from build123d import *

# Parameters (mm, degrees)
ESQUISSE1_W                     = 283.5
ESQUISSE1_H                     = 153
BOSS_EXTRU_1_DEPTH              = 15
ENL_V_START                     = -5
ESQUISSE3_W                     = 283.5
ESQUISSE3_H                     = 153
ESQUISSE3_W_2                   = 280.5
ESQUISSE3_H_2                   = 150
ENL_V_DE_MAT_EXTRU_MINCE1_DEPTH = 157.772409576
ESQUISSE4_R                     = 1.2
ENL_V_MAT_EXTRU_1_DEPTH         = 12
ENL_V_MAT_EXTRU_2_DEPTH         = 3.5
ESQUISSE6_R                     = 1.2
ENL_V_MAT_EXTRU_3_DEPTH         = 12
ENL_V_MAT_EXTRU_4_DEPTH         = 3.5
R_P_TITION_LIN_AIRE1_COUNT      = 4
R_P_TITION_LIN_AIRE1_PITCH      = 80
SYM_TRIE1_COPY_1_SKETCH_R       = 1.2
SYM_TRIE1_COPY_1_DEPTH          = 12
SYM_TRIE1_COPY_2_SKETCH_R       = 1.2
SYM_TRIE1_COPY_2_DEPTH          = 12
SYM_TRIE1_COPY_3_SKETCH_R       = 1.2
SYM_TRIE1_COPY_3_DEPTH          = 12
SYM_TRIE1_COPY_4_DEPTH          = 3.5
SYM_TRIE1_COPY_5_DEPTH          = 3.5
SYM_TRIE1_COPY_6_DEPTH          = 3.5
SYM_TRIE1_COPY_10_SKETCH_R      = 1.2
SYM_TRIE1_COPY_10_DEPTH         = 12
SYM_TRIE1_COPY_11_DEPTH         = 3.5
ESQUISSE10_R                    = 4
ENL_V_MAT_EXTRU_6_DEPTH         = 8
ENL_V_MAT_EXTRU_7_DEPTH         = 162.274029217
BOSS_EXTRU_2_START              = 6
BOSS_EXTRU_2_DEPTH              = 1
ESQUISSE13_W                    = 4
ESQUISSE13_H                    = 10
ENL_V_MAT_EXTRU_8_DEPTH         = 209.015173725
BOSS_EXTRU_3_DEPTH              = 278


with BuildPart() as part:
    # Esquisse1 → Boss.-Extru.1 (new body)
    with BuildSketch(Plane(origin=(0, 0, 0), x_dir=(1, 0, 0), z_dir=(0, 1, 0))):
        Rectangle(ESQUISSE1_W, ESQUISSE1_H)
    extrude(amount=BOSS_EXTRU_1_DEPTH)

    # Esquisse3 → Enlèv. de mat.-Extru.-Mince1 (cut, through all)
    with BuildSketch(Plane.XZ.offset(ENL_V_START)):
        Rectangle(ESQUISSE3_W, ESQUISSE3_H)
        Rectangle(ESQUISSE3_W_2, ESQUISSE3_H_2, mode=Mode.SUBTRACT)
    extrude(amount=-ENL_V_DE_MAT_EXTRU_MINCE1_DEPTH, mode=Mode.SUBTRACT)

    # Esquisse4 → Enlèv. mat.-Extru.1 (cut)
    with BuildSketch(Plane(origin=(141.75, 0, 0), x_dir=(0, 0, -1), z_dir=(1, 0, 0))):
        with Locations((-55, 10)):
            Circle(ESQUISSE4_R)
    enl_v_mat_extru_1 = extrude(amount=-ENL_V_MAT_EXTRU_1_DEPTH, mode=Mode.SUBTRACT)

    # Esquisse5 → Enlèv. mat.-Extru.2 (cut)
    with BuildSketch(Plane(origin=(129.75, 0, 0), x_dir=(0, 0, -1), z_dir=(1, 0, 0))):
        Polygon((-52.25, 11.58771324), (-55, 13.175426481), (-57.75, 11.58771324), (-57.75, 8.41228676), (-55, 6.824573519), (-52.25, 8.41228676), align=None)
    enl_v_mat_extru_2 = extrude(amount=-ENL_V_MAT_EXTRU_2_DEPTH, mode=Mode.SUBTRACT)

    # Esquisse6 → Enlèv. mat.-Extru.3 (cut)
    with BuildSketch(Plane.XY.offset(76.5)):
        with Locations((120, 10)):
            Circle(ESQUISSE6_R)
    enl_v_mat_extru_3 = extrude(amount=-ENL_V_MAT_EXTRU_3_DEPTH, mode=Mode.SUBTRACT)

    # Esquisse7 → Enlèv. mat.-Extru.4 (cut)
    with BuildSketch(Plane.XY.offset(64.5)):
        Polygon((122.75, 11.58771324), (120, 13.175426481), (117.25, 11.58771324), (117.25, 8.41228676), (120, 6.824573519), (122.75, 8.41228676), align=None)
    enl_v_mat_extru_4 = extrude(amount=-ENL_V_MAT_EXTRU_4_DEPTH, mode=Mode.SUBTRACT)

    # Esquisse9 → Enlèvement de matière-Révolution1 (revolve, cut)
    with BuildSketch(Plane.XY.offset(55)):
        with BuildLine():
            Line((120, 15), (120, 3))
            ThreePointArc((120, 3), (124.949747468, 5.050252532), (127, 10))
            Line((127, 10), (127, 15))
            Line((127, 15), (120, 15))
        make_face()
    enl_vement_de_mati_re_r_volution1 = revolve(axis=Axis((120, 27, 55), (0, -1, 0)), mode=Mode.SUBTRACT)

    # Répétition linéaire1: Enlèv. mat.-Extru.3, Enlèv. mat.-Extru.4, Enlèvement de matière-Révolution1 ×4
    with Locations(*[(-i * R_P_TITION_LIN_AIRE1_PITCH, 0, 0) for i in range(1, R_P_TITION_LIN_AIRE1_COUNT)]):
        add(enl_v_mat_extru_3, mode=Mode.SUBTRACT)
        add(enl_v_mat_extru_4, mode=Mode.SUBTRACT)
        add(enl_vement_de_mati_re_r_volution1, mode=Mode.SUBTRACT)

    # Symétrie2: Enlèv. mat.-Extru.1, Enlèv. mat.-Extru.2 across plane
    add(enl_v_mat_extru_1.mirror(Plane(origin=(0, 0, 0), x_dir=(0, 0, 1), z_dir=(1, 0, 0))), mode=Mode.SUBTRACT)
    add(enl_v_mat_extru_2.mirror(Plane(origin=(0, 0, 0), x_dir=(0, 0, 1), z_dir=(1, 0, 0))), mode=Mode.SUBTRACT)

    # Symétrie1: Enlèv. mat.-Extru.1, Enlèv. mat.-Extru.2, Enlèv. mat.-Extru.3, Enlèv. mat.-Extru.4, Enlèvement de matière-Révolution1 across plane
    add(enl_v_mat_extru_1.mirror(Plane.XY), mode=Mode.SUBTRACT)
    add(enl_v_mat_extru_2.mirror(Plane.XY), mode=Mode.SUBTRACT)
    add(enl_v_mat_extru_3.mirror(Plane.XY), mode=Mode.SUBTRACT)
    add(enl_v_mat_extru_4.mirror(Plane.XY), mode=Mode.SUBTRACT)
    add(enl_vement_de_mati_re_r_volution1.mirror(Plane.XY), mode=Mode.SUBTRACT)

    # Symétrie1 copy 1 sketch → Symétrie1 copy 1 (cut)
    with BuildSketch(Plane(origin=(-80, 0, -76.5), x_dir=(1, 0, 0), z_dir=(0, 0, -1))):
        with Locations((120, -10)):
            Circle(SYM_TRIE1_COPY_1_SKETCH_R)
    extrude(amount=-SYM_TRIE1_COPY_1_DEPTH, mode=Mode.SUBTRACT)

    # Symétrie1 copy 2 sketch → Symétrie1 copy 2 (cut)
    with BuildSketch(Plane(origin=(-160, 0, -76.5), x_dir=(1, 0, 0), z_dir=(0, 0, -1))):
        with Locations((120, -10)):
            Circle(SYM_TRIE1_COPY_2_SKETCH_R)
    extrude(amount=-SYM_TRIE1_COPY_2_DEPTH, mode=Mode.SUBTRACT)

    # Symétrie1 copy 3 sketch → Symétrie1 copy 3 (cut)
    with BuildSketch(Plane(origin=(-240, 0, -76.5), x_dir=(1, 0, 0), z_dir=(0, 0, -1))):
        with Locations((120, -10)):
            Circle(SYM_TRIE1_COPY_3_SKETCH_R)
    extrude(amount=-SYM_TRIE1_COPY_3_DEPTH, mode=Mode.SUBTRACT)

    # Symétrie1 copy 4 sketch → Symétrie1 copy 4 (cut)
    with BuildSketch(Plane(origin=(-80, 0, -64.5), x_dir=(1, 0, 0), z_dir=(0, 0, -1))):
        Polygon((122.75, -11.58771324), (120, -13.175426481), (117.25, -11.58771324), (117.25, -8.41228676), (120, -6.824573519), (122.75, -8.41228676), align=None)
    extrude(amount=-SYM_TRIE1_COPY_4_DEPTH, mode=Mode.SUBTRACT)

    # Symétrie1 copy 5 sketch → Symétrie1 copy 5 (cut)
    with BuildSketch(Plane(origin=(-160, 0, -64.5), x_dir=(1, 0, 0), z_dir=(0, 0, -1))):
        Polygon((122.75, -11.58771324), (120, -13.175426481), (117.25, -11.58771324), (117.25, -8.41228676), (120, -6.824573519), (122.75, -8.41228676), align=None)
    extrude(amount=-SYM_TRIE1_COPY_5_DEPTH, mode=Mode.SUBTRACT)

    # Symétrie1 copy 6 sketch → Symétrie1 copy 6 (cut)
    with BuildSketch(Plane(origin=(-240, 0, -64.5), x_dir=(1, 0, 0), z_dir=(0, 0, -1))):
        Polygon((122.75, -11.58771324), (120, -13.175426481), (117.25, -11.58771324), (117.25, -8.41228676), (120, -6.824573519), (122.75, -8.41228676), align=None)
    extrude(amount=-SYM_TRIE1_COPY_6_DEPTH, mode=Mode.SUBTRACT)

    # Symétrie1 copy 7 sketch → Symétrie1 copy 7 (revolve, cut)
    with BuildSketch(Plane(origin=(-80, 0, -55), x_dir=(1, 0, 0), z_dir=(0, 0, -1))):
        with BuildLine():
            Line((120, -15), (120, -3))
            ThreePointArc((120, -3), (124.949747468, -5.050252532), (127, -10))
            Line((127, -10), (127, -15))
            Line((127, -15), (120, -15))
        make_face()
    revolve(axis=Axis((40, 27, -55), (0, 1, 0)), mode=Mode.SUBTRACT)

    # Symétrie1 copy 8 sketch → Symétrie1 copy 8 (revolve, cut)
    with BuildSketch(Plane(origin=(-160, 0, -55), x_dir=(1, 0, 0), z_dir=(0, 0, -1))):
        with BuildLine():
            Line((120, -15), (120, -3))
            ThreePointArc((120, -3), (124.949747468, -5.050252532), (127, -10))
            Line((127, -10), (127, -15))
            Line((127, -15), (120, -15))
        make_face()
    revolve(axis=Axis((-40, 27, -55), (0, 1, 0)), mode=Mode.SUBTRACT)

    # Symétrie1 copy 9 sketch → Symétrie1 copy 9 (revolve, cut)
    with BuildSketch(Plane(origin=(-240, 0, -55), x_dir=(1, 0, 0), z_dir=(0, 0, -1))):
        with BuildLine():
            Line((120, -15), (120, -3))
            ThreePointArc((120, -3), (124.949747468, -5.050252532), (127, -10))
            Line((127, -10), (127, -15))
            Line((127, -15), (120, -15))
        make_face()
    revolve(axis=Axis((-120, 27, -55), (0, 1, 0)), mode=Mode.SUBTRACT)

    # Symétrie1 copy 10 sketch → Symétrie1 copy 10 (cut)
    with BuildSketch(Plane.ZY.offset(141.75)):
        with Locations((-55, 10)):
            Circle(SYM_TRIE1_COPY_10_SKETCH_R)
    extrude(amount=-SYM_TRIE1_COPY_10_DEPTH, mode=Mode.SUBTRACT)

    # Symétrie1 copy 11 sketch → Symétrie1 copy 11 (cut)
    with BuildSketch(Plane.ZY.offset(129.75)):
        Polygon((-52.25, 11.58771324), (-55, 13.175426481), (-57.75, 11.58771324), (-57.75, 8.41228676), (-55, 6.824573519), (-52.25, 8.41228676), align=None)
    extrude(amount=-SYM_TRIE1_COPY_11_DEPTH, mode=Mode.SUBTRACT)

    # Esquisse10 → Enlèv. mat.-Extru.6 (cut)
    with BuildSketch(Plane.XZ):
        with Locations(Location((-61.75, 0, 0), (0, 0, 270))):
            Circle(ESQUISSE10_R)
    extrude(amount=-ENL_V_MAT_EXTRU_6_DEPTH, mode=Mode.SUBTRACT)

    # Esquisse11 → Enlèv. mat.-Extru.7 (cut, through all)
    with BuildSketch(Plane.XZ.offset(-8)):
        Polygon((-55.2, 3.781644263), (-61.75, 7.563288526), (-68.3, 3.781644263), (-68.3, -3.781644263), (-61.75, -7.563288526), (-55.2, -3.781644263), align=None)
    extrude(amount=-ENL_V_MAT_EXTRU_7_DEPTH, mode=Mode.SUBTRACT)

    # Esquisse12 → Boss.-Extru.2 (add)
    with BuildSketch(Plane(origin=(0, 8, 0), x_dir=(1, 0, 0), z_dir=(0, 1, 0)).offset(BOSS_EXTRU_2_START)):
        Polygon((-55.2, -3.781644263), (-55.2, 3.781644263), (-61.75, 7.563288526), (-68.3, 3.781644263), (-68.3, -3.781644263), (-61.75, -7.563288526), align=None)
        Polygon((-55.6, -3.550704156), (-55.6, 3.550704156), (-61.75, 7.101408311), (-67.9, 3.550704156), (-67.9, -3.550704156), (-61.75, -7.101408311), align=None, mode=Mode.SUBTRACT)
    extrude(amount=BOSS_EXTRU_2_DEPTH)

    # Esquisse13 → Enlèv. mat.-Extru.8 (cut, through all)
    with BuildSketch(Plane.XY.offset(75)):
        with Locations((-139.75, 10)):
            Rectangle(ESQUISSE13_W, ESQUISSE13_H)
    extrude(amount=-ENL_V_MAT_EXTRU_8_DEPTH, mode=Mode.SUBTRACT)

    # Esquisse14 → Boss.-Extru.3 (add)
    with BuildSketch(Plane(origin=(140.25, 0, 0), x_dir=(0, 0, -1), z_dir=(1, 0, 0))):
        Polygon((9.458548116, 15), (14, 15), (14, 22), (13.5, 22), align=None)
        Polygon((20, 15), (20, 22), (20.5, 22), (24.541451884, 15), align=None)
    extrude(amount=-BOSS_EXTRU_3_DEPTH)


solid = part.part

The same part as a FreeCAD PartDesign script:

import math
import FreeCAD as App
import Part
import Sketcher

V = App.Vector
Q = App.Units.Quantity


def add_polygon(sketch, points):
    """Adds a closed chain of lines whose ends are joined by coincident constraints."""
    first, n = sketch.GeometryCount, len(points)
    for a, b in zip(points, points[1:] + points[:1]):
        sketch.addGeometry(Part.LineSegment(App.Vector(*a, 0), App.Vector(*b, 0)), False)
    for i in range(n):
        sketch.addConstraint(Sketcher.Constraint("Coincident", first + i, 2, first + (i + 1) % n, 1))

doc = App.newDocument("Part")
body = doc.addObject("PartDesign::Body", "Body")

# Sketch on XZ plane
sketch1 = body.newObject("Sketcher::SketchObject", "Sketch")
sketch1.AttachmentSupport = (doc.getObject("XZ_Plane"), [""])
sketch1.MapMode = "FlatFace"
add_polygon(sketch1, [(-142, -76), (-142, 76), (142, 76), (142, -76)])  # lines 0-3
sketch1.addConstraint([
    Sketcher.Constraint("Vertical", 0),
    Sketcher.Constraint("Horizontal", 1),
    Sketcher.Constraint("Vertical", 2),
    Sketcher.Constraint("Horizontal", 3),
    Sketcher.Constraint("Symmetric", 0, 2, 2, 2, -1, 1),
    Sketcher.Constraint("DistanceY", 0, 1, 0, 2, Q("153 mm")),
    Sketcher.Constraint("DistanceX", 1, 1, 1, 2, Q("283.5 mm")),
])
pad1 = body.newObject("PartDesign::Pad", "Pad")
pad1.Profile = sketch1
pad1.Length = 15
pad1.Reversed = True

# Sketch on XZ plane
sketch2 = body.newObject("Sketcher::SketchObject", "Sketch001")
sketch2.AttachmentSupport = (doc.getObject("XZ_Plane"), [""])
sketch2.MapMode = "FlatFace"
sketch2.AttachmentOffset = App.Placement(V(0, 0, -5), App.Rotation())
add_polygon(sketch2, [(-142, 76), (-142, -76), (142, -76), (142, 76)])  # lines 0-3
add_polygon(sketch2, [(140, -75), (-140, -75), (-140, 75), (140, 75)])  # lines 4-7
sketch2.addConstraint([
    Sketcher.Constraint("Vertical", 0),
    Sketcher.Constraint("Horizontal", 1),
    Sketcher.Constraint("Vertical", 2),
    Sketcher.Constraint("Horizontal", 3),
    Sketcher.Constraint("Horizontal", 4),
    Sketcher.Constraint("Vertical", 5),
    Sketcher.Constraint("Horizontal", 6),
    Sketcher.Constraint("Vertical", 7),
    Sketcher.Constraint("Symmetric", 0, 2, 2, 2, -1, 1),
    Sketcher.Constraint("Symmetric", 4, 2, 6, 2, -1, 1),
    Sketcher.Constraint("DistanceY", 0, 2, 0, 1, Q("153 mm")),
    Sketcher.Constraint("DistanceY", 5, 1, 5, 2, Q("150 mm")),
    Sketcher.Constraint("DistanceX", 1, 1, 1, 2, Q("283.5 mm")),
    Sketcher.Constraint("DistanceX", 4, 2, 4, 1, Q("280.5 mm")),
])
pocket1 = body.newObject("PartDesign::Pocket", "Pocket")
pocket1.Profile = sketch2
pocket1.Type = "ThroughAll"

# Sketch on YZ plane
sketch3 = body.newObject("Sketcher::SketchObject", "Sketch002")
sketch3.AttachmentSupport = (doc.getObject("YZ_Plane"), [""])
sketch3.MapMode = "FlatFace"
sketch3.AttachmentOffset = App.Placement(V(0, 0, 141.75), App.Rotation())
sketch3.addGeometry(Part.Circle(V(10, 55, 0), V(0, 0, 1), 1.2), False)
sketch3.addConstraint([
    Sketcher.Constraint("Diameter", 0, Q("2.4 mm")),
    Sketcher.Constraint("DistanceX", -1, 1, 0, 3, Q("10 mm")),
    Sketcher.Constraint("DistanceY", -1, 1, 0, 3, Q("55 mm")),
])
pocket2 = body.newObject("PartDesign::Pocket", "Pocket001")
pocket2.Profile = sketch3
pocket2.Length = 12

# Sketch on YZ plane
sketch4 = body.newObject("Sketcher::SketchObject", "Sketch003")
sketch4.AttachmentSupport = (doc.getObject("YZ_Plane"), [""])
sketch4.MapMode = "FlatFace"
sketch4.AttachmentOffset = App.Placement(V(0, 0, 129.75), App.Rotation())
add_polygon(sketch4, [(11.6, 52.2), (13.2, 55), (11.6, 57.8), (8.4, 57.8), (6.8, 55), (8.4, 52.2)])  # lines 0-5
sketch4.addConstraint([
    Sketcher.Constraint("Horizontal", 2),
    Sketcher.Constraint("Horizontal", 5),
    Sketcher.Constraint("Parallel", 0, 3),
    Sketcher.Constraint("Parallel", 1, 4),
    Sketcher.Constraint("Horizontal", 0, 2, 3, 2),
    Sketcher.Constraint("Vertical", 2, 2, 4, 2),
    Sketcher.Constraint("Vertical", 1, 2, 5, 2),
    Sketcher.Constraint("Angle", 0, Q("60 deg")),
    Sketcher.Constraint("DistanceY", -1, 1, 0, 2, Q("55 mm")),
    Sketcher.Constraint("DistanceY", 4, 2, 2, 2, Q("5.5 mm")),
    Sketcher.Constraint("DistanceX", 2, 2, 2, 1, Q("3.175426 mm")),
    Sketcher.Constraint("DistanceX", -1, 1, 0, 2, Q("13.175426 mm")),
])
pocket3 = body.newObject("PartDesign::Pocket", "Pocket002")
pocket3.Profile = sketch4
pocket3.Length = 3.5

# Sketch on XY plane
sketch5 = body.newObject("Sketcher::SketchObject", "Sketch004")
sketch5.AttachmentSupport = (doc.getObject("XY_Plane"), [""])
sketch5.MapMode = "FlatFace"
sketch5.AttachmentOffset = App.Placement(V(0, 0, 76.5), App.Rotation())
sketch5.addGeometry(Part.Circle(V(120, 10, 0), V(0, 0, 1), 1.2), False)
sketch5.addConstraint([
    Sketcher.Constraint("Diameter", 0, Q("2.4 mm")),
    Sketcher.Constraint("DistanceX", -1, 1, 0, 3, Q("120 mm")),
    Sketcher.Constraint("DistanceY", -1, 1, 0, 3, Q("10 mm")),
])
pocket4 = body.newObject("PartDesign::Pocket", "Pocket003")
pocket4.Profile = sketch5
pocket4.Length = 12

# Sketch on XY plane
sketch6 = body.newObject("Sketcher::SketchObject", "Sketch005")
sketch6.AttachmentSupport = (doc.getObject("XY_Plane"), [""])
sketch6.MapMode = "FlatFace"
sketch6.AttachmentOffset = App.Placement(V(0, 0, 64.5), App.Rotation())
add_polygon(sketch6, [(122.8, 11.6), (120, 13.2), (117.2, 11.6), (117.2, 8.4), (120, 6.8), (122.8, 8.4)])  # lines 0-5
sketch6.addConstraint([
    Sketcher.Constraint("Vertical", 2),
    Sketcher.Constraint("Vertical", 5),
    Sketcher.Constraint("Parallel", 0, 3),
    Sketcher.Constraint("Parallel", 1, 4),
    Sketcher.Constraint("Horizontal", 2, 2, 4, 2),
    Sketcher.Constraint("Horizontal", 1, 2, 5, 2),
    Sketcher.Constraint("Vertical", 0, 2, 3, 2),
    Sketcher.Constraint("Angle", 0, Q("150 deg")),
    Sketcher.Constraint("DistanceX", -1, 1, 0, 2, Q("120 mm")),
    Sketcher.Constraint("DistanceX", 2, 2, 4, 2, Q("5.5 mm")),
    Sketcher.Constraint("DistanceY", 2, 2, 2, 1, Q("3.175426 mm")),
    Sketcher.Constraint("DistanceY", -1, 1, 0, 2, Q("13.175426 mm")),
])
pocket5 = body.newObject("PartDesign::Pocket", "Pocket004")
pocket5.Profile = sketch6
pocket5.Length = 3.5

# Sketch on XY plane
sketch7 = body.newObject("Sketcher::SketchObject", "Sketch006")
sketch7.AttachmentSupport = (doc.getObject("XY_Plane"), [""])
sketch7.MapMode = "FlatFace"
sketch7.AttachmentOffset = App.Placement(V(0, 0, 55), App.Rotation())
sketch7.addGeometry([
    Part.LineSegment(V(120, 15, 0), V(120, 3, 0)),
    Part.ArcOfCircle(Part.Circle(V(120, 10, 0), V(0, 0, 1), 7), math.radians(-90), math.radians(0)),
    Part.LineSegment(V(127, 10, 0), V(127, 15, 0)),
    Part.LineSegment(V(127, 15, 0), V(120, 15, 0)),
], False)
sketch7.addGeometry(Part.LineSegment(V(120, 15, 0), V(120, 3, 0)), True)  # axis
sketch7.addConstraint([
    Sketcher.Constraint("Coincident", 0, 2, 1, 1),
    Sketcher.Constraint("Tangent", 1, 2, 2, 1),
    Sketcher.Constraint("Coincident", 2, 2, 3, 1),
    Sketcher.Constraint("Coincident", 3, 2, 0, 1),
    Sketcher.Constraint("Vertical", 0),
    Sketcher.Constraint("Vertical", 2),
    Sketcher.Constraint("Horizontal", 3),
    Sketcher.Constraint("Vertical", 4),
    Sketcher.Constraint("Coincident", 4, 1, 3, 2),
    Sketcher.Constraint("Vertical", 1, 3, 0, 2),
    Sketcher.Constraint("Equal", 0, 4),
    Sketcher.Constraint("Radius", 1, Q("7 mm")),
    Sketcher.Constraint("DistanceY", 0, 2, 0, 1, Q("12 mm")),
    Sketcher.Constraint("DistanceX", -1, 1, 1, 3, Q("120 mm")),
    Sketcher.Constraint("DistanceY", -1, 1, 1, 3, Q("10 mm")),
])
groove = body.newObject("PartDesign::Groove", "Groove")
groove.Profile = sketch7
groove.ReferenceAxis = (sketch7, ["Axis0"])
groove.Angle = 360
doc.recompute()

linearpattern = body.newObject("PartDesign::LinearPattern", "LinearPattern")
linearpattern.Originals = [pocket4, pocket5, groove]
linearpattern.Direction = (doc.getObject("X_Axis"), [""])
linearpattern.Mode = "offset"
linearpattern.Offset = 80
linearpattern.Occurrences = 4
linearpattern.Reversed = True
body.Tip = linearpattern
doc.recompute()

mirrored = body.newObject("PartDesign::Mirrored", "Mirrored")
mirrored.Originals = [pocket2, pocket3]
mirrored.MirrorPlane = (doc.getObject("YZ_Plane"), [""])
body.Tip = mirrored
doc.recompute()

mirrored2 = body.newObject("PartDesign::Mirrored", "Mirrored001")
mirrored2.Originals = [pocket2, pocket3, pocket4, pocket5, groove]
mirrored2.MirrorPlane = (doc.getObject("XY_Plane"), [""])
body.Tip = mirrored2

# Sketch on XY plane
sketch8 = body.newObject("Sketcher::SketchObject", "Sketch007")
sketch8.AttachmentSupport = (doc.getObject("XY_Plane"), [""])
sketch8.MapMode = "FlatFace"
sketch8.AttachmentOffset = App.Placement(V(0, 0, -76.5), App.Rotation())
sketch8.addGeometry(Part.Circle(V(40, 10, 0), V(0, 0, 1), 1.2), False)
sketch8.addConstraint([
    Sketcher.Constraint("Diameter", 0, Q("2.4 mm")),
    Sketcher.Constraint("DistanceX", -1, 1, 0, 3, Q("40 mm")),
    Sketcher.Constraint("DistanceY", -1, 1, 0, 3, Q("10 mm")),
])
pocket6 = body.newObject("PartDesign::Pocket", "Pocket005")
pocket6.Profile = sketch8
pocket6.Length = 12
pocket6.Reversed = True

# Sketch on XY plane
sketch9 = body.newObject("Sketcher::SketchObject", "Sketch008")
sketch9.AttachmentSupport = (doc.getObject("XY_Plane"), [""])
sketch9.MapMode = "FlatFace"
sketch9.AttachmentOffset = App.Placement(V(0, 0, -76.5), App.Rotation())
sketch9.addGeometry(Part.Circle(V(-40, 10, 0), V(0, 0, 1), 1.2), False)
sketch9.addConstraint([
    Sketcher.Constraint("Diameter", 0, Q("2.4 mm")),
    Sketcher.Constraint("DistanceX", 0, 3, -1, 1, Q("40 mm")),
    Sketcher.Constraint("DistanceY", -1, 1, 0, 3, Q("10 mm")),
])
pocket7 = body.newObject("PartDesign::Pocket", "Pocket006")
pocket7.Profile = sketch9
pocket7.Length = 12
pocket7.Reversed = True

# Sketch on XY plane
sketch10 = body.newObject("Sketcher::SketchObject", "Sketch009")
sketch10.AttachmentSupport = (doc.getObject("XY_Plane"), [""])
sketch10.MapMode = "FlatFace"
sketch10.AttachmentOffset = App.Placement(V(0, 0, -76.5), App.Rotation())
sketch10.addGeometry(Part.Circle(V(-120, 10, 0), V(0, 0, 1), 1.2), False)
sketch10.addConstraint([
    Sketcher.Constraint("Diameter", 0, Q("2.4 mm")),
    Sketcher.Constraint("DistanceX", 0, 3, -1, 1, Q("120 mm")),
    Sketcher.Constraint("DistanceY", -1, 1, 0, 3, Q("10 mm")),
])
pocket8 = body.newObject("PartDesign::Pocket", "Pocket007")
pocket8.Profile = sketch10
pocket8.Length = 12
pocket8.Reversed = True

# Sketch on XY plane
sketch11 = body.newObject("Sketcher::SketchObject", "Sketch010")
sketch11.AttachmentSupport = (doc.getObject("XY_Plane"), [""])
sketch11.MapMode = "FlatFace"
sketch11.AttachmentOffset = App.Placement(V(0, 0, -64.5), App.Rotation())
add_polygon(sketch11, [(40, 13.2), (42.8, 11.6), (42.8, 8.4), (40, 6.8), (37.2, 8.4), (37.2, 11.6)])  # lines 0-5
sketch11.addConstraint([
    Sketcher.Constraint("Vertical", 1),
    Sketcher.Constraint("Vertical", 4),
    Sketcher.Constraint("Parallel", 0, 3),
    Sketcher.Constraint("Parallel", 2, 5),
    Sketcher.Constraint("Horizontal", 1, 2, 3, 2),
    Sketcher.Constraint("Horizontal", 0, 2, 4, 2),
    Sketcher.Constraint("Vertical", 2, 2, 5, 2),
    Sketcher.Constraint("Angle", 0, Q("-30 deg")),
    Sketcher.Constraint("DistanceX", -1, 1, 2, 2, Q("40 mm")),
    Sketcher.Constraint("DistanceX", 3, 2, 1, 2, Q("5.5 mm")),
    Sketcher.Constraint("DistanceY", 1, 2, 1, 1, Q("3.175426 mm")),
    Sketcher.Constraint("DistanceY", -1, 1, 0, 2, Q("11.587713 mm")),
])
pocket9 = body.newObject("PartDesign::Pocket", "Pocket008")
pocket9.Profile = sketch11
pocket9.Length = 3.5
pocket9.Reversed = True

# Sketch on XY plane
sketch12 = body.newObject("Sketcher::SketchObject", "Sketch011")
sketch12.AttachmentSupport = (doc.getObject("XY_Plane"), [""])
sketch12.MapMode = "FlatFace"
sketch12.AttachmentOffset = App.Placement(V(0, 0, -64.5), App.Rotation())
add_polygon(sketch12, [(-40, 13.2), (-37.2, 11.6), (-37.2, 8.4), (-40, 6.8), (-42.8, 8.4), (-42.8, 11.6)])  # lines 0-5
sketch12.addConstraint([
    Sketcher.Constraint("Vertical", 1),
    Sketcher.Constraint("Vertical", 4),
    Sketcher.Constraint("Parallel", 0, 3),
    Sketcher.Constraint("Parallel", 2, 5),
    Sketcher.Constraint("Horizontal", 1, 2, 3, 2),
    Sketcher.Constraint("Horizontal", 0, 2, 4, 2),
    Sketcher.Constraint("Vertical", 2, 2, 5, 2),
    Sketcher.Constraint("Angle", 0, Q("-30 deg")),
    Sketcher.Constraint("DistanceX", 2, 2, -1, 1, Q("40 mm")),
    Sketcher.Constraint("DistanceX", 3, 2, 1, 2, Q("5.5 mm")),
    Sketcher.Constraint("DistanceY", 1, 2, 1, 1, Q("3.175426 mm")),
    Sketcher.Constraint("DistanceY", -1, 1, 0, 2, Q("11.587713 mm")),
])
pocket10 = body.newObject("PartDesign::Pocket", "Pocket009")
pocket10.Profile = sketch12
pocket10.Length = 3.5
pocket10.Reversed = True

# Sketch on XY plane
sketch13 = body.newObject("Sketcher::SketchObject", "Sketch012")
sketch13.AttachmentSupport = (doc.getObject("XY_Plane"), [""])
sketch13.MapMode = "FlatFace"
sketch13.AttachmentOffset = App.Placement(V(0, 0, -64.5), App.Rotation())
add_polygon(sketch13, [(-120, 13.2), (-117.2, 11.6), (-117.2, 8.4), (-120, 6.8), (-122.8, 8.4), (-122.8, 11.6)])  # lines 0-5
sketch13.addConstraint([
    Sketcher.Constraint("Vertical", 1),
    Sketcher.Constraint("Vertical", 4),
    Sketcher.Constraint("Parallel", 0, 3),
    Sketcher.Constraint("Parallel", 2, 5),
    Sketcher.Constraint("Horizontal", 1, 2, 3, 2),
    Sketcher.Constraint("Horizontal", 0, 2, 4, 2),
    Sketcher.Constraint("Vertical", 2, 2, 5, 2),
    Sketcher.Constraint("Angle", 0, Q("-30 deg")),
    Sketcher.Constraint("DistanceX", 2, 2, -1, 1, Q("120 mm")),
    Sketcher.Constraint("DistanceX", 3, 2, 1, 2, Q("5.5 mm")),
    Sketcher.Constraint("DistanceY", 1, 2, 1, 1, Q("3.175426 mm")),
    Sketcher.Constraint("DistanceY", -1, 1, 0, 2, Q("11.587713 mm")),
])
pocket11 = body.newObject("PartDesign::Pocket", "Pocket010")
pocket11.Profile = sketch13
pocket11.Length = 3.5
pocket11.Reversed = True

# Sketch on XY plane
sketch14 = body.newObject("Sketcher::SketchObject", "Sketch013")
sketch14.AttachmentSupport = (doc.getObject("XY_Plane"), [""])
sketch14.MapMode = "FlatFace"
sketch14.AttachmentOffset = App.Placement(V(0, 0, -55), App.Rotation())
sketch14.addGeometry([
    Part.LineSegment(V(40, 3, 0), V(40, 15, 0)),
    Part.LineSegment(V(40, 15, 0), V(47, 15, 0)),
    Part.LineSegment(V(47, 15, 0), V(47, 10, 0)),
    Part.ArcOfCircle(Part.Circle(V(40, 10, 0), V(0, 0, 1), 7), math.radians(-90), math.radians(0)),
], False)
sketch14.addGeometry(Part.LineSegment(V(40, 3, 0), V(40, 15, 0)), True)  # axis
sketch14.addConstraint([
    Sketcher.Constraint("Coincident", 0, 2, 1, 1),
    Sketcher.Constraint("Coincident", 1, 2, 2, 1),
    Sketcher.Constraint("Tangent", 2, 2, 3, 2),
    Sketcher.Constraint("Coincident", 3, 1, 0, 1),
    Sketcher.Constraint("Vertical", 0),
    Sketcher.Constraint("Horizontal", 1),
    Sketcher.Constraint("Vertical", 2),
    Sketcher.Constraint("Vertical", 4),
    Sketcher.Constraint("Coincident", 4, 1, 3, 1),
    Sketcher.Constraint("Horizontal", 1, 2, 4, 2),
    Sketcher.Constraint("Vertical", 3, 3, 0, 2),
    Sketcher.Constraint("Radius", 3, Q("7 mm")),
    Sketcher.Constraint("DistanceY", 0, 1, 0, 2, Q("12 mm")),
    Sketcher.Constraint("DistanceX", -1, 1, 3, 3, Q("40 mm")),
    Sketcher.Constraint("DistanceY", -1, 1, 3, 3, Q("10 mm")),
])
groove2 = body.newObject("PartDesign::Groove", "Groove001")
groove2.Profile = sketch14
groove2.ReferenceAxis = (sketch14, ["Axis0"])
groove2.Angle = 360

# Sketch on XY plane
sketch15 = body.newObject("Sketcher::SketchObject", "Sketch014")
sketch15.AttachmentSupport = (doc.getObject("XY_Plane"), [""])
sketch15.MapMode = "FlatFace"
sketch15.AttachmentOffset = App.Placement(V(0, 0, -55), App.Rotation())
sketch15.addGeometry([
    Part.LineSegment(V(-40, 3, 0), V(-40, 15, 0)),
    Part.LineSegment(V(-40, 15, 0), V(-33, 15, 0)),
    Part.LineSegment(V(-33, 15, 0), V(-33, 10, 0)),
    Part.ArcOfCircle(Part.Circle(V(-40, 10, 0), V(0, 0, 1), 7), math.radians(-90), math.radians(0)),
], False)
sketch15.addGeometry(Part.LineSegment(V(-40, 3, 0), V(-40, 15, 0)), True)  # axis
sketch15.addConstraint([
    Sketcher.Constraint("Coincident", 0, 2, 1, 1),
    Sketcher.Constraint("Coincident", 1, 2, 2, 1),
    Sketcher.Constraint("Tangent", 2, 2, 3, 2),
    Sketcher.Constraint("Coincident", 3, 1, 0, 1),
    Sketcher.Constraint("Vertical", 0),
    Sketcher.Constraint("Horizontal", 1),
    Sketcher.Constraint("Vertical", 2),
    Sketcher.Constraint("Vertical", 4),
    Sketcher.Constraint("Coincident", 4, 1, 3, 1),
    Sketcher.Constraint("Horizontal", 1, 2, 4, 2),
    Sketcher.Constraint("Vertical", 3, 3, 0, 2),
    Sketcher.Constraint("Radius", 3, Q("7 mm")),
    Sketcher.Constraint("DistanceY", 0, 1, 0, 2, Q("12 mm")),
    Sketcher.Constraint("DistanceX", 3, 3, -1, 1, Q("40 mm")),
    Sketcher.Constraint("DistanceY", -1, 1, 3, 3, Q("10 mm")),
])
groove3 = body.newObject("PartDesign::Groove", "Groove002")
groove3.Profile = sketch15
groove3.ReferenceAxis = (sketch15, ["Axis0"])
groove3.Angle = 360

# Sketch on XY plane
sketch16 = body.newObject("Sketcher::SketchObject", "Sketch015")
sketch16.AttachmentSupport = (doc.getObject("XY_Plane"), [""])
sketch16.MapMode = "FlatFace"
sketch16.AttachmentOffset = App.Placement(V(0, 0, -55), App.Rotation())
sketch16.addGeometry([
    Part.LineSegment(V(-120, 3, 0), V(-120, 15, 0)),
    Part.LineSegment(V(-120, 15, 0), V(-113, 15, 0)),
    Part.LineSegment(V(-113, 15, 0), V(-113, 10, 0)),
    Part.ArcOfCircle(Part.Circle(V(-120, 10, 0), V(0, 0, 1), 7), math.radians(-90), math.radians(0)),
], False)
sketch16.addGeometry(Part.LineSegment(V(-120, 3, 0), V(-120, 15, 0)), True)  # axis
sketch16.addConstraint([
    Sketcher.Constraint("Coincident", 0, 2, 1, 1),
    Sketcher.Constraint("Coincident", 1, 2, 2, 1),
    Sketcher.Constraint("Tangent", 2, 2, 3, 2),
    Sketcher.Constraint("Coincident", 3, 1, 0, 1),
    Sketcher.Constraint("Vertical", 0),
    Sketcher.Constraint("Horizontal", 1),
    Sketcher.Constraint("Vertical", 2),
    Sketcher.Constraint("Vertical", 4),
    Sketcher.Constraint("Coincident", 4, 1, 3, 1),
    Sketcher.Constraint("Horizontal", 1, 2, 4, 2),
    Sketcher.Constraint("Vertical", 3, 3, 0, 2),
    Sketcher.Constraint("Radius", 3, Q("7 mm")),
    Sketcher.Constraint("DistanceY", 0, 1, 0, 2, Q("12 mm")),
    Sketcher.Constraint("DistanceX", 3, 3, -1, 1, Q("120 mm")),
    Sketcher.Constraint("DistanceY", -1, 1, 3, 3, Q("10 mm")),
])
groove4 = body.newObject("PartDesign::Groove", "Groove003")
groove4.Profile = sketch16
groove4.ReferenceAxis = (sketch16, ["Axis0"])
groove4.Angle = 360

# Sketch on YZ plane
sketch17 = body.newObject("Sketcher::SketchObject", "Sketch016")
sketch17.AttachmentSupport = (doc.getObject("YZ_Plane"), [""])
sketch17.MapMode = "FlatFace"
sketch17.AttachmentOffset = App.Placement(V(0, 0, -141.75), App.Rotation())
sketch17.addGeometry(Part.Circle(V(10, -55, 0), V(0, 0, 1), 1.2), False)
sketch17.addConstraint([
    Sketcher.Constraint("Diameter", 0, Q("2.4 mm")),
    Sketcher.Constraint("DistanceX", -1, 1, 0, 3, Q("10 mm")),
    Sketcher.Constraint("DistanceY", 0, 3, -1, 1, Q("55 mm")),
])
pocket12 = body.newObject("PartDesign::Pocket", "Pocket011")
pocket12.Profile = sketch17
pocket12.Length = 12
pocket12.Reversed = True

# Sketch on YZ plane
sketch18 = body.newObject("Sketcher::SketchObject", "Sketch017")
sketch18.AttachmentSupport = (doc.getObject("YZ_Plane"), [""])
sketch18.MapMode = "FlatFace"
sketch18.AttachmentOffset = App.Placement(V(0, 0, -129.75), App.Rotation())
add_polygon(sketch18, [(11.6, -52.2), (13.2, -55), (11.6, -57.8), (8.4, -57.8), (6.8, -55), (8.4, -52.2)])  # lines 0-5
sketch18.addConstraint([
    Sketcher.Constraint("Horizontal", 2),
    Sketcher.Constraint("Horizontal", 5),
    Sketcher.Constraint("Parallel", 0, 3),
    Sketcher.Constraint("Parallel", 1, 4),
    Sketcher.Constraint("Horizontal", 0, 2, 3, 2),
    Sketcher.Constraint("Vertical", 2, 2, 4, 2),
    Sketcher.Constraint("Vertical", 1, 2, 5, 2),
    Sketcher.Constraint("Angle", 0, Q("-60 deg")),
    Sketcher.Constraint("DistanceY", 0, 2, -1, 1, Q("55 mm")),
    Sketcher.Constraint("DistanceY", 2, 2, 4, 2, Q("5.5 mm")),
    Sketcher.Constraint("DistanceX", 2, 2, 2, 1, Q("3.175426 mm")),
    Sketcher.Constraint("DistanceX", -1, 1, 0, 2, Q("13.175426 mm")),
])
pocket13 = body.newObject("PartDesign::Pocket", "Pocket012")
pocket13.Profile = sketch18
pocket13.Length = 3.5
pocket13.Reversed = True

# Sketch on XZ plane
sketch19 = body.newObject("Sketcher::SketchObject", "Sketch018")
sketch19.AttachmentSupport = (doc.getObject("XZ_Plane"), [""])
sketch19.MapMode = "FlatFace"
sketch19.addGeometry(Part.Circle(V(-61.8, 0, 0), V(0, 0, 1), 4), False)
sketch19.addConstraint([
    Sketcher.Constraint("PointOnObject", 0, 3, -1),
    Sketcher.Constraint("Diameter", 0, Q("8 mm")),
    Sketcher.Constraint("DistanceX", 0, 3, -1, 1, Q("61.75 mm")),
])
pocket14 = body.newObject("PartDesign::Pocket", "Pocket013")
pocket14.Profile = sketch19
pocket14.Length = 8

# Sketch on XZ plane
sketch20 = body.newObject("Sketcher::SketchObject", "Sketch019")
sketch20.AttachmentSupport = (doc.getObject("XZ_Plane"), [""])
sketch20.MapMode = "FlatFace"
sketch20.AttachmentOffset = App.Placement(V(0, 0, -8), App.Rotation())
add_polygon(sketch20, [(-55, 4), (-62, 8), (-68, 4), (-68, -4), (-62, -8), (-55, -4)])  # lines 0-5
sketch20.addConstraint([
    Sketcher.Constraint("Vertical", 2),
    Sketcher.Constraint("Vertical", 5),
    Sketcher.Constraint("Symmetric", 0, 2, 3, 2, -1),
    Sketcher.Constraint("Parallel", 0, 3),
    Sketcher.Constraint("Parallel", 1, 4),
    Sketcher.Constraint("Horizontal", 2, 2, 4, 2),
    Sketcher.Constraint("Horizontal", 1, 2, 5, 2),
    Sketcher.Constraint("Angle", 0, Q("150 deg")),
    Sketcher.Constraint("DistanceX", 1, 2, -1, 1, Q("68.3 mm")),
    Sketcher.Constraint("DistanceX", 4, 2, -1, 1, Q("55.2 mm")),
    Sketcher.Constraint("DistanceY", 2, 2, 2, 1, Q("7.563289 mm")),
])
pocket15 = body.newObject("PartDesign::Pocket", "Pocket014")
pocket15.Profile = sketch20
pocket15.Type = "ThroughAll"

# Sketch on XZ plane
sketch21 = body.newObject("Sketcher::SketchObject", "Sketch020")
sketch21.AttachmentSupport = (doc.getObject("XZ_Plane"), [""])
sketch21.MapMode = "FlatFace"
sketch21.AttachmentOffset = App.Placement(V(0, 0, -14), App.Rotation())
add_polygon(sketch21, [(-55, 4), (-55, -4), (-62, -8), (-68, -4), (-68, 4), (-62, 8)])  # lines 0-5
add_polygon(sketch21, [(-56, -4), (-56, 4), (-62, 7), (-68, 4), (-68, -4), (-62, -7)])  # lines 6-11
sketch21.addConstraint([
    Sketcher.Constraint("Vertical", 0),
    Sketcher.Constraint("Vertical", 3),
    Sketcher.Constraint("Vertical", 6),
    Sketcher.Constraint("Vertical", 9),
    Sketcher.Constraint("Symmetric", 1, 2, 4, 2, -1),
    Sketcher.Constraint("Symmetric", 7, 2, 10, 2, -1),
    Sketcher.Constraint("Parallel", 1, 4),
    Sketcher.Constraint("Parallel", 2, 5),
    Sketcher.Constraint("Parallel", 5, 7),
    Sketcher.Constraint("Parallel", 4, 8),
    Sketcher.Constraint("Parallel", 7, 10),
    Sketcher.Constraint("Parallel", 8, 11),
    Sketcher.Constraint("Horizontal", 0, 2, 2, 2),
    Sketcher.Constraint("Horizontal", 3, 2, 5, 2),
    Sketcher.Constraint("Horizontal", 6, 2, 8, 2),
    Sketcher.Constraint("Vertical", 4, 2, 7, 2),
    Sketcher.Constraint("Angle", 1, Q("-150 deg")),
    Sketcher.Constraint("DistanceX", 0, 2, -1, 1, Q("55.2 mm")),
    Sketcher.Constraint("DistanceX", 2, 2, -1, 1, Q("68.3 mm")),
    Sketcher.Constraint("DistanceX", 6, 2, -1, 1, Q("55.6 mm")),
    Sketcher.Constraint("DistanceY", 0, 2, 0, 1, Q("7.563289 mm")),
    Sketcher.Constraint("DistanceY", 6, 1, 6, 2, Q("7.101408 mm")),
])
pad2 = body.newObject("PartDesign::Pad", "Pad001")
pad2.Profile = sketch21
pad2.Length = 1
pad2.Reversed = True

# Sketch on XY plane
sketch22 = body.newObject("Sketcher::SketchObject", "Sketch021")
sketch22.AttachmentSupport = (doc.getObject("XY_Plane"), [""])
sketch22.MapMode = "FlatFace"
sketch22.AttachmentOffset = App.Placement(V(0, 0, 75), App.Rotation())
add_polygon(sketch22, [(-141.8, 15), (-141.8, 5), (-137.8, 5), (-137.8, 15)])  # lines 0-3
sketch22.addConstraint([
    Sketcher.Constraint("Vertical", 0),
    Sketcher.Constraint("Horizontal", 1),
    Sketcher.Constraint("Vertical", 2),
    Sketcher.Constraint("Horizontal", 3),
    Sketcher.Constraint("DistanceX", 1, 1, 1, 2, Q("4 mm")),
    Sketcher.Constraint("DistanceY", 0, 2, 0, 1, Q("10 mm")),
    Sketcher.Constraint("DistanceY", -1, 1, 0, 2, Q("5 mm")),
    Sketcher.Constraint("DistanceX", 0, 2, -1, 1, Q("141.75 mm")),
])
pocket16 = body.newObject("PartDesign::Pocket", "Pocket015")
pocket16.Profile = sketch22
pocket16.Type = "ThroughAll"

# Sketch on YZ plane
sketch23 = body.newObject("Sketcher::SketchObject", "Sketch022")
sketch23.AttachmentSupport = (doc.getObject("YZ_Plane"), [""])
sketch23.MapMode = "FlatFace"
sketch23.AttachmentOffset = App.Placement(V(0, 0, 140.25), App.Rotation())
add_polygon(sketch23, [(15, -9.5), (15, -14), (22, -14), (22, -13.5)])  # lines 0-3
add_polygon(sketch23, [(22, -20), (15, -20), (15, -24.5), (22, -20.5)])  # lines 4-7
sketch23.addConstraint([
    Sketcher.Constraint("Vertical", 0),
    Sketcher.Constraint("Horizontal", 1),
    Sketcher.Constraint("Vertical", 2),
    Sketcher.Constraint("Horizontal", 4),
    Sketcher.Constraint("Vertical", 5),
    Sketcher.Constraint("Vertical", 7),
    Sketcher.Constraint("Vertical", 3, 2, 4, 2),
    Sketcher.Constraint("Vertical", 2, 2, 6, 2),
    Sketcher.Constraint("Equal", 0, 5),
    Sketcher.Constraint("Equal", 2, 7),
    Sketcher.Constraint("DistanceX", 1, 1, 1, 2, Q("7 mm")),
    Sketcher.Constraint("Angle", 3, Q("150 deg")),
    Sketcher.Constraint("DistanceY", 2, 1, 2, 2, Q("0.5 mm")),
    Sketcher.Constraint("DistanceX", -1, 1, 0, 2, Q("15 mm")),
    Sketcher.Constraint("DistanceY", 0, 2, -1, 1, Q("14 mm")),
    Sketcher.Constraint("DistanceY", 4, 2, -1, 1, Q("20 mm")),
])
pad3 = body.newObject("PartDesign::Pad", "Pad002")
pad3.Profile = sketch23
pad3.Length = 278
pad3.Reversed = True

doc.recompute()
